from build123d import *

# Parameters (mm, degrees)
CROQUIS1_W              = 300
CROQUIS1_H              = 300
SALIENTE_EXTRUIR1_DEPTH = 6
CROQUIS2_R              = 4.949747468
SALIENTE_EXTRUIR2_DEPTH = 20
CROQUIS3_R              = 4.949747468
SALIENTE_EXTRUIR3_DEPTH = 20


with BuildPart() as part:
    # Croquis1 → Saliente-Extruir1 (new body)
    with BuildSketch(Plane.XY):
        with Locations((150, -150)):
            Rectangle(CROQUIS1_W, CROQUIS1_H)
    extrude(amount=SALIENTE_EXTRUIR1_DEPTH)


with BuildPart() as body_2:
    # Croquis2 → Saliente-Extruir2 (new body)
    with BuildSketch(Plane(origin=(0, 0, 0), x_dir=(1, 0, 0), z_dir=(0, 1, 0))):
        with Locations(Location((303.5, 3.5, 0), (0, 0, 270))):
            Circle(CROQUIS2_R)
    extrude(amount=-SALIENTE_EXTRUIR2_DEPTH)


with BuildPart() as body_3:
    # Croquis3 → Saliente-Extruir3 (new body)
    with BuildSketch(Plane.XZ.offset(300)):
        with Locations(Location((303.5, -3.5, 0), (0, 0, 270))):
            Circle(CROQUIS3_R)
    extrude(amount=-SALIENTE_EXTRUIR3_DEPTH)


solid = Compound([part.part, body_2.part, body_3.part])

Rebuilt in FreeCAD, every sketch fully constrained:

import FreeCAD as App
import Part
import Sketcher


def add_polygon(sketch, points):
    """Adds a closed chain of lines whose ends are joined by coincident constraints."""
    first, n = sketch.GeometryCount, len(points)
    for a, b in zip(points, points[1:] + points[:1]):
        sketch.addGeometry(Part.LineSegment(App.Vector(*a, 0), App.Vector(*b, 0)), False)
    for i in range(n):
        sketch.addConstraint(Sketcher.Constraint("Coincident", first + i, 2, first + (i + 1) % n, 1))

doc = App.newDocument("Part")
body = doc.addObject("PartDesign::Body", "Body")

# Sketch on XY plane
sketch1 = doc.addObject("Sketcher::SketchObject", "Sketch")
body.addObject(sketch1)
sketch1.AttachmentSupport = (doc.XY_Plane, [""])
sketch1.MapMode = "FlatFace"
add_polygon(sketch1, [(0, 0), (0, -300), (300, -300), (300, 0)])  # lines 0-3
sketch1.addConstraint(Sketcher.Constraint("Vertical", 0))
sketch1.addConstraint(Sketcher.Constraint("Horizontal", 1))
sketch1.addConstraint(Sketcher.Constraint("Vertical", 2))
sketch1.addConstraint(Sketcher.Constraint("Horizontal", 3))
sketch1.addConstraint(Sketcher.Constraint("Coincident", 3, 2, -1, 1))
sketch1.addConstraint(Sketcher.Constraint("Equal", 3, 0))
sketch1.addConstraint(Sketcher.Constraint("DistanceX", 1, 1, 1, 2, 300.0))
pad1 = doc.addObject("PartDesign::Pad", "Pad")
body.addObject(pad1)
pad1.Profile = sketch1
pad1.Length = 6
body2 = doc.addObject("PartDesign::Body", "Body001")

# Sketch on XZ plane
sketch2 = doc.addObject("Sketcher::SketchObject", "Sketch001")
body2.addObject(sketch2)
sketch2.AttachmentSupport = (doc.getObject("XZ_Plane001"), [""])
sketch2.MapMode = "FlatFace"
sketch2.addGeometry(Part.Circle(App.Vector(303.5, -3.5, 0), App.Vector(0, 0, 1), 4.9), False)
sketch2.addConstraint(Sketcher.Constraint("DistanceX", -1, 1, 0, 3, 303.5))
sketch2.addConstraint(Sketcher.Constraint("DistanceY", 0, 3, -1, 1, 3.5))
sketch2.addConstraint(Sketcher.Constraint("Diameter", 0, 9.899495))
pad2 = doc.addObject("PartDesign::Pad", "Pad001")
body2.addObject(pad2)
pad2.Profile = sketch2
pad2.Length = 20
body3 = doc.addObject("PartDesign::Body", "Body002")

# Sketch on XZ plane
sketch3 = doc.addObject("Sketcher::SketchObject", "Sketch002")
body3.addObject(sketch3)
sketch3.AttachmentSupport = (doc.getObject("XZ_Plane002"), [""])
sketch3.MapMode = "FlatFace"
sketch3.AttachmentOffset = App.Placement(App.Vector(0, 0, 300), App.Rotation())
sketch3.addGeometry(Part.Circle(App.Vector(303.5, -3.5, 0), App.Vector(0, 0, 1), 4.9), False)
sketch3.addConstraint(Sketcher.Constraint("DistanceX", -1, 1, 0, 3, 303.5))
sketch3.addConstraint(Sketcher.Constraint("DistanceY", 0, 3, -1, 1, 3.5))
sketch3.addConstraint(Sketcher.Constraint("Diameter", 0, 9.899495))
pad3 = doc.addObject("PartDesign::Pad", "Pad002")
body3.addObject(pad3)
pad3.Profile = sketch3
pad3.Length = 20
pad3.Reversed = True

doc.recompute()
